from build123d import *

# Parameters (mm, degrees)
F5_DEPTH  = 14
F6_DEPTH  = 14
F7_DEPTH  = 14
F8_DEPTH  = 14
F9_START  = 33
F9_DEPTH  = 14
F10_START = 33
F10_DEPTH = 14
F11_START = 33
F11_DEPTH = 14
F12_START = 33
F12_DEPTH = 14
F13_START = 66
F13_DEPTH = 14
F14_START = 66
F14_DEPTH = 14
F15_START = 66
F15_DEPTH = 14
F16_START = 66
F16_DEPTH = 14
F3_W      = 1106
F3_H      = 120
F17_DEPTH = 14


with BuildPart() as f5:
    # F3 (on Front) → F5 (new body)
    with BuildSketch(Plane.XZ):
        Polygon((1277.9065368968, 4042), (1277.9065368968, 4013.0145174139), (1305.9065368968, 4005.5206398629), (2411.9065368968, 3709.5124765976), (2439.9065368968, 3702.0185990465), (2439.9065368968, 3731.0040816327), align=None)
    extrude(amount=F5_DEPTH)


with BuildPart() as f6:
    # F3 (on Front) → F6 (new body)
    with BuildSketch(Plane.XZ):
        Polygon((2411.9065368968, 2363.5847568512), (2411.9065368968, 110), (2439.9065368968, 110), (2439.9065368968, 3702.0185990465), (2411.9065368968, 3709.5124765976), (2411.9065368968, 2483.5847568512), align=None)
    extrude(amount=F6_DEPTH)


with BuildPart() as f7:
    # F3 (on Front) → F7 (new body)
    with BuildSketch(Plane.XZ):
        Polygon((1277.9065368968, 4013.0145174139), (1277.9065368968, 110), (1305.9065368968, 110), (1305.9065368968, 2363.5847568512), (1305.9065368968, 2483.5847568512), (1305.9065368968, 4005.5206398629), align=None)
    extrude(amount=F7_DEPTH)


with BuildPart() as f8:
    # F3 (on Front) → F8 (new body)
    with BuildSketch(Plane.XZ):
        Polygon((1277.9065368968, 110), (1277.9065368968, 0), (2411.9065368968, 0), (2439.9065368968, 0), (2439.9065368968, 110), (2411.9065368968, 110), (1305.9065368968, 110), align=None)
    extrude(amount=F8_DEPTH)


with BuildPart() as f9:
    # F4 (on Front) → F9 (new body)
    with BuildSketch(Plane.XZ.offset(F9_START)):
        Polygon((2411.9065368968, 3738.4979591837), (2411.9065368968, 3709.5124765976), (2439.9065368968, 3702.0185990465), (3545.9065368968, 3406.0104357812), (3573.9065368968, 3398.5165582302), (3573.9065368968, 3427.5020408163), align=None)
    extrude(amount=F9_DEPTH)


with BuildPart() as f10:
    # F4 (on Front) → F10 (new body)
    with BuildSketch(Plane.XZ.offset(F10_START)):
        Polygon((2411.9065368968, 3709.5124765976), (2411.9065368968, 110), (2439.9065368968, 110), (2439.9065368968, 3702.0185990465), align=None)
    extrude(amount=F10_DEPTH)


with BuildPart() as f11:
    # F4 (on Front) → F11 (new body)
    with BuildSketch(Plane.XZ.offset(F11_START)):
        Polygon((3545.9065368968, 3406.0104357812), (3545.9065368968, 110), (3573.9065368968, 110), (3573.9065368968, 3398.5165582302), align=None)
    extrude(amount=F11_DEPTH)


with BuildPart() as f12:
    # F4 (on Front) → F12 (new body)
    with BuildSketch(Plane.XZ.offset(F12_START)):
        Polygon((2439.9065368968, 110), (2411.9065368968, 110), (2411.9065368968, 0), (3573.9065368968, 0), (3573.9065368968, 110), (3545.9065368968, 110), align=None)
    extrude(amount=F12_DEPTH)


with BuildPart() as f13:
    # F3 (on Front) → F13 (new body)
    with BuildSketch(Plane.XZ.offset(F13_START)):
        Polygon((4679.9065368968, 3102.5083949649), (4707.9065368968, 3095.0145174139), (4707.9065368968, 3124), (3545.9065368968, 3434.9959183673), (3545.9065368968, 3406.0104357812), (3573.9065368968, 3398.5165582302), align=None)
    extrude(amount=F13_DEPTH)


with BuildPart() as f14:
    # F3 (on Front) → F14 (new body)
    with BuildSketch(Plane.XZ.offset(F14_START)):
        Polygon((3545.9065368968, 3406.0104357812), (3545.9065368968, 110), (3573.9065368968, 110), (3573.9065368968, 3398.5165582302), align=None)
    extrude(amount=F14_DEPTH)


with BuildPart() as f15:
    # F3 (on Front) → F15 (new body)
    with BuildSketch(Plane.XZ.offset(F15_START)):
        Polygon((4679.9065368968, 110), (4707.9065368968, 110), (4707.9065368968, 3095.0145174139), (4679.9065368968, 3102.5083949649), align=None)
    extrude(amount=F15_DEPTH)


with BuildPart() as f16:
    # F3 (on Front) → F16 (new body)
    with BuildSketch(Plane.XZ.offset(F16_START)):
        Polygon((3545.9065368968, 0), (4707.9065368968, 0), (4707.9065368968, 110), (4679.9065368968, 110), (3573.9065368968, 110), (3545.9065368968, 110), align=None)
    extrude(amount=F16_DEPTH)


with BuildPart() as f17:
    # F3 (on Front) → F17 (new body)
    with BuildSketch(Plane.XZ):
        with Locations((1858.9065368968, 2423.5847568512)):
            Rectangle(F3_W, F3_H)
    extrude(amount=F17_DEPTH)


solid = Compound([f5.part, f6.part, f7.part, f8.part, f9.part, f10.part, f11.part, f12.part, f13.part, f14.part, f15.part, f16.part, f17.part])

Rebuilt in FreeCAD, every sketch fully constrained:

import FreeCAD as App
import Part
import Sketcher
from FreeCAD import Vector
Q = App.Units.Quantity


def add_polygon(sketch, points):
    """Adds a closed chain of lines whose ends are joined by coincident constraints."""
    first, n = sketch.GeometryCount, len(points)
    for a, b in zip(points, points[1:] + points[:1]):
        sketch.addGeometry(Part.LineSegment(App.Vector(*a, 0), App.Vector(*b, 0)), False)
    for i in range(n):
        sketch.addConstraint(Sketcher.Constraint("Coincident", first + i, 2, first + (i + 1) % n, 1))

doc = App.newDocument("Part")
body = doc.addObject("PartDesign::Body", "Body")

# Sketch on XZ plane
sketch1 = body.newObject("Sketcher::SketchObject", "Sketch")
sketch1.AttachmentSupport = (doc.getObject("XZ_Plane"), [""])
sketch1.MapMode = "FlatFace"
add_polygon(sketch1, [(1278, 4042), (1278, 4013), (2412, 3710), (2440, 3702), (2440, 3731)])  # lines 0-4
sketch1.addConstraint(Sketcher.Constraint("Vertical", 0))
sketch1.addConstraint(Sketcher.Constraint("Vertical", 3))
sketch1.addConstraint(Sketcher.Constraint("Parallel", 1, 2))
sketch1.addConstraint(Sketcher.Constraint("Parallel", 2, 4))
sketch1.addConstraint(Sketcher.Constraint("DistanceY", -1, 1, 4, 2, Q("4042 mm")))
sketch1.addConstraint(Sketcher.Constraint("DistanceX", 0, 2, 1, 2, Q("1134 mm")))
sketch1.addConstraint(Sketcher.Constraint("DistanceX", 1, 2, 2, 2, Q("28 mm")))
sketch1.addConstraint(Sketcher.Constraint("DistanceY", -1, 1, 2, 2, Q("3702.018599 mm")))
sketch1.addConstraint(Sketcher.Constraint("DistanceY", 0, 2, 0, 1, Q("28.985483 mm")))
sketch1.addConstraint(Sketcher.Constraint("DistanceX", -1, 1, 0, 2, Q("1277.906537 mm")))
pad1 = body.newObject("PartDesign::Pad", "Pad")
pad1.Profile = sketch1
pad1.Length = 14
body2 = doc.addObject("PartDesign::Body", "Body001")

# Sketch on XZ plane
sketch2 = body2.newObject("Sketcher::SketchObject", "Sketch001")
sketch2.AttachmentSupport = (doc.getObject("XZ_Plane001"), [""])
sketch2.MapMode = "FlatFace"
add_polygon(sketch2, [(2412, 110), (2440, 110), (2440, 3702), (2412, 3710)])  # lines 0-3
sketch2.addConstraint(Sketcher.Constraint("Horizontal", 0))
sketch2.addConstraint(Sketcher.Constraint("Vertical", 1))
sketch2.addConstraint(Sketcher.Constraint("Vertical", 3))
sketch2.addConstraint(Sketcher.Constraint("DistanceX", 0, 1, 0, 2, Q("28 mm")))
sketch2.addConstraint(Sketcher.Constraint("DistanceY", -1, 1, 0, 2, Q("110 mm")))
sketch2.addConstraint(Sketcher.Constraint("DistanceY", 1, 1, 1, 2, Q("3592.018599 mm")))
sketch2.addConstraint(Sketcher.Constraint("DistanceY", 3, 2, 3, 1, Q("3599.512477 mm")))
sketch2.addConstraint(Sketcher.Constraint("DistanceX", -1, 1, 0, 2, Q("2439.906537 mm")))
pad2 = body2.newObject("PartDesign::Pad", "Pad001")
pad2.Profile = sketch2
pad2.Length = 14
body3 = doc.addObject("PartDesign::Body", "Body002")

# Sketch on XZ plane
sketch3 = body3.newObject("Sketcher::SketchObject", "Sketch002")
sketch3.AttachmentSupport = (doc.getObject("XZ_Plane002"), [""])
sketch3.MapMode = "FlatFace"
add_polygon(sketch3, [(1278, 4013), (1278, 110), (1306, 110), (1306, 4006)])  # lines 0-3
sketch3.addConstraint(Sketcher.Constraint("Vertical", 0))
sketch3.addConstraint(Sketcher.Constraint("Horizontal", 1))
sketch3.addConstraint(Sketcher.Constraint("Vertical", 2))
sketch3.addConstraint(Sketcher.Constraint("DistanceX", 1, 1, 1, 2, Q("28 mm")))
sketch3.addConstraint(Sketcher.Constraint("DistanceY", -1, 1, 0, 2, Q("110 mm")))
sketch3.addConstraint(Sketcher.Constraint("DistanceY", 2, 1, 2, 2, Q("3895.52064 mm")))
sketch3.addConstraint(Sketcher.Constraint("DistanceY", 0, 2, 0, 1, Q("3903.014517 mm")))
sketch3.addConstraint(Sketcher.Constraint("DistanceX", -1, 1, 0, 2, Q("1277.906537 mm")))
pad3 = body3.newObject("PartDesign::Pad", "Pad002")
pad3.Profile = sketch3
pad3.Length = 14
body4 = doc.addObject("PartDesign::Body", "Body003")

# Sketch on XZ plane
sketch4 = body4.newObject("Sketcher::SketchObject", "Sketch003")
sketch4.AttachmentSupport = (doc.getObject("XZ_Plane003"), [""])
sketch4.MapMode = "FlatFace"
add_polygon(sketch4, [(1278, 110), (1278, 0), (2440, 0), (2440, 110)])  # lines 0-3
sketch4.addConstraint(Sketcher.Constraint("Vertical", 0))
sketch4.addConstraint(Sketcher.Constraint("Horizontal", 1))
sketch4.addConstraint(Sketcher.Constraint("Vertical", 2))
sketch4.addConstraint(Sketcher.Constraint("Horizontal", 3))
sketch4.addConstraint(Sketcher.Constraint("PointOnObject", 0, 2, -1))
sketch4.addConstraint(Sketcher.Constraint("DistanceX", 1, 1, 1, 2, Q("1162 mm")))
sketch4.addConstraint(Sketcher.Constraint("DistanceY", 0, 2, 0, 1, Q("110 mm")))
sketch4.addConstraint(Sketcher.Constraint("DistanceX", -1, 1, 0, 2, Q("1277.906537 mm")))
pad4 = body4.newObject("PartDesign::Pad", "Pad003")
pad4.Profile = sketch4
pad4.Length = 14
body5 = doc.addObject("PartDesign::Body", "Body004")

# Sketch on XZ plane
sketch5 = body5.newObject("Sketcher::SketchObject", "Sketch004")
sketch5.AttachmentSupport = (doc.getObject("XZ_Plane004"), [""])
sketch5.MapMode = "FlatFace"
sketch5.AttachmentOffset = App.Placement(Vector(0, 0, 33), App.Rotation())
add_polygon(sketch5, [(2412, 3738), (2412, 3710), (2440, 3702), (3574, 3399), (3574, 3428)])  # lines 0-4
sketch5.addConstraint(Sketcher.Constraint("Vertical", 0))
sketch5.addConstraint(Sketcher.Constraint("Vertical", 3))
sketch5.addConstraint(Sketcher.Constraint("Parallel", 1, 2))
sketch5.addConstraint(Sketcher.Constraint("Parallel", 2, 4))
sketch5.addConstraint(Sketcher.Constraint("DistanceX", 0, 2, 1, 2, Q("28 mm")))
sketch5.addConstraint(Sketcher.Constraint("DistanceX", 1, 2, 2, 2, Q("1134 mm")))
sketch5.addConstraint(Sketcher.Constraint("DistanceY", -1, 1, 1, 2, Q("3702.018599 mm")))
sketch5.addConstraint(Sketcher.Constraint("DistanceY", 2, 2, 4, 2, Q("339.981401 mm")))
sketch5.addConstraint(Sketcher.Constraint("DistanceY", 0, 2, 0, 1, Q("28.985483 mm")))
sketch5.addConstraint(Sketcher.Constraint("DistanceX", -1, 1, 0, 2, Q("2411.906537 mm")))
pad5 = body5.newObject("PartDesign::Pad", "Pad004")
pad5.Profile = sketch5
pad5.Length = 14
body6 = doc.addObject("PartDesign::Body", "Body005")

# Sketch on XZ plane
sketch6 = body6.newObject("Sketcher::SketchObject", "Sketch005")
sketch6.AttachmentSupport = (doc.getObject("XZ_Plane005"), [""])
sketch6.MapMode = "FlatFace"
sketch6.AttachmentOffset = App.Placement(Vector(0, 0, 33), App.Rotation())
add_polygon(sketch6, [(2412, 3710), (2412, 110), (2440, 110), (2440, 3702)])  # lines 0-3
sketch6.addConstraint(Sketcher.Constraint("Vertical", 0))
sketch6.addConstraint(Sketcher.Constraint("Horizontal", 1))
sketch6.addConstraint(Sketcher.Constraint("Vertical", 2))
sketch6.addConstraint(Sketcher.Constraint("DistanceX", 1, 1, 1, 2, Q("28 mm")))
sketch6.addConstraint(Sketcher.Constraint("DistanceY", -1, 1, 0, 2, Q("110 mm")))
sketch6.addConstraint(Sketcher.Constraint("DistanceY", 2, 1, 2, 2, Q("3592.018599 mm")))
sketch6.addConstraint(Sketcher.Constraint("DistanceY", 0, 2, 0, 1, Q("3599.512477 mm")))
sketch6.addConstraint(Sketcher.Constraint("DistanceX", -1, 1, 0, 2, Q("2411.906537 mm")))
pad6 = body6.newObject("PartDesign::Pad", "Pad005")
pad6.Profile = sketch6
pad6.Length = 14
body7 = doc.addObject("PartDesign::Body", "Body006")

# Sketch on XZ plane
sketch7 = body7.newObject("Sketcher::SketchObject", "Sketch006")
sketch7.AttachmentSupport = (doc.getObject("XZ_Plane006"), [""])
sketch7.MapMode = "FlatFace"
sketch7.AttachmentOffset = App.Placement(Vector(0, 0, 33), App.Rotation())
add_polygon(sketch7, [(3546, 3406), (3546, 110), (3574, 110), (3574, 3399)])  # lines 0-3
sketch7.addConstraint(Sketcher.Constraint("Vertical", 0))
sketch7.addConstraint(Sketcher.Constraint("Horizontal", 1))
sketch7.addConstraint(Sketcher.Constraint("Vertical", 2))
sketch7.addConstraint(Sketcher.Constraint("DistanceX", 1, 1, 1, 2, Q("28 mm")))
sketch7.addConstraint(Sketcher.Constraint("DistanceY", -1, 1, 0, 2, Q("110 mm")))
sketch7.addConstraint(Sketcher.Constraint("DistanceY", 2, 1, 2, 2, Q("3288.516558 mm")))
sketch7.addConstraint(Sketcher.Constraint("DistanceY", 0, 2, 0, 1, Q("3296.010436 mm")))
sketch7.addConstraint(Sketcher.Constraint("DistanceX", -1, 1, 0, 2, Q("3545.906537 mm")))
pad7 = body7.newObject("PartDesign::Pad", "Pad006")
pad7.Profile = sketch7
pad7.Length = 14
body8 = doc.addObject("PartDesign::Body", "Body007")

# Sketch on XZ plane
sketch8 = body8.newObject("Sketcher::SketchObject", "Sketch007")
sketch8.AttachmentSupport = (doc.getObject("XZ_Plane007"), [""])
sketch8.MapMode = "FlatFace"
sketch8.AttachmentOffset = App.Placement(Vector(0, 0, 33), App.Rotation())
add_polygon(sketch8, [(2412, 110), (2412, 0), (3574, 0), (3574, 110)])  # lines 0-3
sketch8.addConstraint(Sketcher.Constraint("Vertical", 0))
sketch8.addConstraint(Sketcher.Constraint("Horizontal", 1))
sketch8.addConstraint(Sketcher.Constraint("Vertical", 2))
sketch8.addConstraint(Sketcher.Constraint("Horizontal", 3))
sketch8.addConstraint(Sketcher.Constraint("PointOnObject", 0, 2, -1))
sketch8.addConstraint(Sketcher.Constraint("DistanceX", 1, 1, 1, 2, Q("1162 mm")))
sketch8.addConstraint(Sketcher.Constraint("DistanceY", 0, 2, 0, 1, Q("110 mm")))
sketch8.addConstraint(Sketcher.Constraint("DistanceX", -1, 1, 0, 2, Q("2411.906537 mm")))
pad8 = body8.newObject("PartDesign::Pad", "Pad007")
pad8.Profile = sketch8
pad8.Length = 14
body9 = doc.addObject("PartDesign::Body", "Body008")

# Sketch on XZ plane
sketch9 = body9.newObject("Sketcher::SketchObject", "Sketch008")
sketch9.AttachmentSupport = (doc.getObject("XZ_Plane008"), [""])
sketch9.MapMode = "FlatFace"
sketch9.AttachmentOffset = App.Placement(Vector(0, 0, 66), App.Rotation())
add_polygon(sketch9, [(4708, 3095), (4708, 3124), (3546, 3435), (3546, 3406)])  # lines 0-3
sketch9.addConstraint(Sketcher.Constraint("Vertical", 0))
sketch9.addConstraint(Sketcher.Constraint("Vertical", 2))
sketch9.addConstraint(Sketcher.Constraint("Parallel", 1, 3))
sketch9.addConstraint(Sketcher.Constraint("DistanceY", -1, 1, 0, 2, Q("3124 mm")))
sketch9.addConstraint(Sketcher.Constraint("DistanceX", 1, 2, 0, 2, Q("1162 mm")))
sketch9.addConstraint(Sketcher.Constraint("DistanceY", 3, 2, 1, 2, Q("339.981401 mm")))
sketch9.addConstraint(Sketcher.Constraint("DistanceY", 0, 1, 0, 2, Q("28.985483 mm")))
sketch9.addConstraint(Sketcher.Constraint("DistanceX", -1, 1, 0, 2, Q("4707.906537 mm")))
pad9 = body9.newObject("PartDesign::Pad", "Pad008")
pad9.Profile = sketch9
pad9.Length = 14
body10 = doc.addObject("PartDesign::Body", "Body009")

# Sketch on XZ plane
sketch10 = body10.newObject("Sketcher::SketchObject", "Sketch009")
sketch10.AttachmentSupport = (doc.getObject("XZ_Plane009"), [""])
sketch10.MapMode = "FlatFace"
sketch10.AttachmentOffset = App.Placement(Vector(0, 0, 66), App.Rotation())
add_polygon(sketch10, [(3546, 3406), (3546, 110), (3574, 110), (3574, 3399)])  # lines 0-3
sketch10.addConstraint(Sketcher.Constraint("Vertical", 0))
sketch10.addConstraint(Sketcher.Constraint("Horizontal", 1))
sketch10.addConstraint(Sketcher.Constraint("Vertical", 2))
sketch10.addConstraint(Sketcher.Constraint("DistanceX", 1, 1, 1, 2, Q("28 mm")))
sketch10.addConstraint(Sketcher.Constraint("DistanceY", -1, 1, 0, 2, Q("110 mm")))
sketch10.addConstraint(Sketcher.Constraint("DistanceY", 2, 1, 2, 2, Q("3288.516558 mm")))
sketch10.addConstraint(Sketcher.Constraint("DistanceY", 0, 2, 0, 1, Q("3296.010436 mm")))
sketch10.addConstraint(Sketcher.Constraint("DistanceX", -1, 1, 0, 2, Q("3545.906537 mm")))
pad10 = body10.newObject("PartDesign::Pad", "Pad009")
pad10.Profile = sketch10
pad10.Length = 14
body11 = doc.addObject("PartDesign::Body", "Body010")

# Sketch on XZ plane
sketch11 = body11.newObject("Sketcher::SketchObject", "Sketch010")
sketch11.AttachmentSupport = (doc.getObject("XZ_Plane010"), [""])
sketch11.MapMode = "FlatFace"
sketch11.AttachmentOffset = App.Placement(Vector(0, 0, 66), App.Rotation())
add_polygon(sketch11, [(4680, 110), (4708, 110), (4708, 3095), (4680, 3103)])  # lines 0-3
sketch11.addConstraint(Sketcher.Constraint("Horizontal", 0))
sketch11.addConstraint(Sketcher.Constraint("Vertical", 1))
sketch11.addConstraint(Sketcher.Constraint("Vertical", 3))
sketch11.addConstraint(Sketcher.Constraint("DistanceX", 0, 1, 0, 2, Q("28 mm")))
sketch11.addConstraint(Sketcher.Constraint("DistanceY", -1, 1, 0, 2, Q("110 mm")))
sketch11.addConstraint(Sketcher.Constraint("DistanceY", 1, 1, 1, 2, Q("2985.014517 mm")))
sketch11.addConstraint(Sketcher.Constraint("DistanceY", 3, 2, 3, 1, Q("2992.508395 mm")))
sketch11.addConstraint(Sketcher.Constraint("DistanceX", -1, 1, 0, 2, Q("4707.906537 mm")))
pad11 = body11.newObject("PartDesign::Pad", "Pad010")
pad11.Profile = sketch11
pad11.Length = 14
body12 = doc.addObject("PartDesign::Body", "Body011")

# Sketch on XZ plane
sketch12 = body12.newObject("Sketcher::SketchObject", "Sketch011")
sketch12.AttachmentSupport = (doc.getObject("XZ_Plane011"), [""])
sketch12.MapMode = "FlatFace"
sketch12.AttachmentOffset = App.Placement(Vector(0, 0, 66), App.Rotation())
add_polygon(sketch12, [(3546, 0), (4708, 0), (4708, 110), (3546, 110)])  # lines 0-3
sketch12.addConstraint(Sketcher.Constraint("Horizontal", 0))
sketch12.addConstraint(Sketcher.Constraint("Vertical", 1))
sketch12.addConstraint(Sketcher.Constraint("Horizontal", 2))
sketch12.addConstraint(Sketcher.Constraint("Vertical", 3))
sketch12.addConstraint(Sketcher.Constraint("PointOnObject", 0, 2, -1))
sketch12.addConstraint(Sketcher.Constraint("DistanceX", 0, 1, 0, 2, Q("1162 mm")))
sketch12.addConstraint(Sketcher.Constraint("DistanceY", 1, 1, 1, 2, Q("110 mm")))
sketch12.addConstraint(Sketcher.Constraint("DistanceX", -1, 1, 0, 2, Q("4707.906537 mm")))
pad12 = body12.newObject("PartDesign::Pad", "Pad011")
pad12.Profile = sketch12
pad12.Length = 14
body13 = doc.addObject("PartDesign::Body", "Body012")

# Sketch on XZ plane
sketch13 = body13.newObject("Sketcher::SketchObject", "Sketch012")
sketch13.AttachmentSupport = (doc.getObject("XZ_Plane012"), [""])
sketch13.MapMode = "FlatFace"
add_polygon(sketch13, [(1306, 2484), (1306, 2364), (2412, 2364), (2412, 2484)])  # lines 0-3
sketch13.addConstraint(Sketcher.Constraint("Vertical", 0))
sketch13.addConstraint(Sketcher.Constraint("Horizontal", 1))
sketch13.addConstraint(Sketcher.Constraint("Vertical", 2))
sketch13.addConstraint(Sketcher.Constraint("Horizontal", 3))
sketch13.addConstraint(Sketcher.Constraint("DistanceX", 1, 1, 1, 2, Q("1106 mm")))
sketch13.addConstraint(Sketcher.Constraint("DistanceY", 0, 2, 0, 1, Q("120 mm")))
sketch13.addConstraint(Sketcher.Constraint("DistanceX", -1, 1, 0, 2, Q("1305.906537 mm")))
sketch13.addConstraint(Sketcher.Constraint("DistanceY", -1, 1, 0, 2, Q("2363.584757 mm")))
pad13 = body13.newObject("PartDesign::Pad", "Pad012")
pad13.Profile = sketch13
pad13.Length = 14

doc.recompute()
